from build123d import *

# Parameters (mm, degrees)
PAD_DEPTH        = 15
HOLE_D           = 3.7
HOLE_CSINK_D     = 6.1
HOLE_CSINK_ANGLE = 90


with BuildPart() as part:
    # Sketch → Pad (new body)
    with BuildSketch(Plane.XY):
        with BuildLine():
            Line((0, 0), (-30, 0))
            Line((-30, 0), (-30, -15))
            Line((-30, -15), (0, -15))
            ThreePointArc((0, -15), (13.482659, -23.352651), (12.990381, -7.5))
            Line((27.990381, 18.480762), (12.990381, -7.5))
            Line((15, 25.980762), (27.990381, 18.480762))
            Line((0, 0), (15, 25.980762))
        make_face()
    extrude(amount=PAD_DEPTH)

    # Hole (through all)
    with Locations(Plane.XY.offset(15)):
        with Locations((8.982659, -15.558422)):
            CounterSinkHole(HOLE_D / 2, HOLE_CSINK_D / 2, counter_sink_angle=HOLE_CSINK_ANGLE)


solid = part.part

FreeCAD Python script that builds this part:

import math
import FreeCAD as App
import Part
import Sketcher
Q = App.Units.Quantity

doc = App.newDocument("Part")
body = doc.addObject("PartDesign::Body", "Body")

# Sketch on XY plane
sketch1 = body.newObject("Sketcher::SketchObject", "Sketch")
sketch1.AttachmentSupport = (doc.getObject("XY_Plane"), [""])
sketch1.MapMode = "FlatFace"
sketch1.addGeometry(Part.LineSegment(App.Vector(0, 0, 0), App.Vector(-30, 0, 0)), False)
sketch1.addGeometry(Part.LineSegment(App.Vector(-30, 0, 0), App.Vector(-30, -15, 0)), False)
sketch1.addGeometry(Part.LineSegment(App.Vector(-30, -15, 0), App.Vector(0, -15, 0)), False)
sketch1.addGeometry(Part.ArcOfCircle(Part.Circle(App.Vector(9, -16, 0), App.Vector(0, 0, 1), 9), math.radians(176), math.radians(424)), False)
sketch1.addGeometry(Part.LineSegment(App.Vector(13, -8, 0), App.Vector(28, 18, 0)), False)
sketch1.addGeometry(Part.LineSegment(App.Vector(28, 18, 0), App.Vector(15, 26, 0)), False)
sketch1.addGeometry(Part.LineSegment(App.Vector(15, 26, 0), App.Vector(0, 0, 0)), False)
sketch1.addConstraint(Sketcher.Constraint("Coincident", 0, 2, 1, 1))
sketch1.addConstraint(Sketcher.Constraint("Coincident", 1, 2, 2, 1))
sketch1.addConstraint(Sketcher.Constraint("Coincident", 2, 2, 3, 1))
sketch1.addConstraint(Sketcher.Constraint("Coincident", 3, 2, 4, 1))
sketch1.addConstraint(Sketcher.Constraint("Coincident", 4, 2, 5, 1))
sketch1.addConstraint(Sketcher.Constraint("Coincident", 5, 2, 6, 1))
sketch1.addConstraint(Sketcher.Constraint("Coincident", 6, 2, 0, 1))
sketch1.addConstraint(Sketcher.Constraint("Horizontal", 0))
sketch1.addConstraint(Sketcher.Constraint("Vertical", 1))
sketch1.addConstraint(Sketcher.Constraint("Horizontal", 2))
sketch1.addConstraint(Sketcher.Constraint("Coincident", 6, 2, -1, 1))
sketch1.addConstraint(Sketcher.Constraint("PointOnObject", 2, 2, -2))
sketch1.addConstraint(Sketcher.Constraint("Perpendicular", 4, 5))
sketch1.addConstraint(Sketcher.Constraint("Perpendicular", 5, 6))
sketch1.addConstraint(Sketcher.Constraint("Equal", 4, 6))
sketch1.addConstraint(Sketcher.Constraint("Radius", 3, 9.0))
sketch1.addConstraint(Sketcher.Constraint("DistanceX", 0, 2, 0, 1, 30.0))
sketch1.addConstraint(Sketcher.Constraint("DistanceY", 1, 2, 1, 1, 15.0))
sketch1.addConstraint(Sketcher.Constraint("Angle", 4, Q("60 deg")))
sketch1.addConstraint(Sketcher.Constraint("Distance", 4, 30.0))
sketch1.addConstraint(Sketcher.Constraint("Distance", 5, 15.0))
pad1 = body.newObject("PartDesign::Pad", "Pad")
pad1.Profile = sketch1
pad1.Length = 15

# Sketch on XY plane
sketch2 = body.newObject("Sketcher::SketchObject", "Sketch001")
sketch2.AttachmentSupport = (doc.getObject("XY_Plane"), [""])
sketch2.MapMode = "FlatFace"
sketch2.AttachmentOffset = App.Placement(App.Vector(0, 0, 15), App.Rotation())
sketch2.addGeometry(Part.Circle(App.Vector(9, -15.6, 0), App.Vector(0, 0, 1), 1.9), False)
sketch2.addConstraint(Sketcher.Constraint("Diameter", 0, 3.7))
sketch2.addConstraint(Sketcher.Constraint("DistanceX", -1, 1, 0, 3, 8.982659))
sketch2.addConstraint(Sketcher.Constraint("DistanceY", 0, 3, -1, 1, 15.558422))
doc.recompute()
hole = body.newObject("PartDesign::Hole", "Hole")
hole.Profile = sketch2
hole.ThreadType = "None"
hole.Diameter = 3.7
hole.DepthType = "ThroughAll"
hole.HoleCutType = "Countersink"
hole.HoleCutDiameter = 6.1
hole.HoleCutCountersinkAngle = 90

doc.recompute()
